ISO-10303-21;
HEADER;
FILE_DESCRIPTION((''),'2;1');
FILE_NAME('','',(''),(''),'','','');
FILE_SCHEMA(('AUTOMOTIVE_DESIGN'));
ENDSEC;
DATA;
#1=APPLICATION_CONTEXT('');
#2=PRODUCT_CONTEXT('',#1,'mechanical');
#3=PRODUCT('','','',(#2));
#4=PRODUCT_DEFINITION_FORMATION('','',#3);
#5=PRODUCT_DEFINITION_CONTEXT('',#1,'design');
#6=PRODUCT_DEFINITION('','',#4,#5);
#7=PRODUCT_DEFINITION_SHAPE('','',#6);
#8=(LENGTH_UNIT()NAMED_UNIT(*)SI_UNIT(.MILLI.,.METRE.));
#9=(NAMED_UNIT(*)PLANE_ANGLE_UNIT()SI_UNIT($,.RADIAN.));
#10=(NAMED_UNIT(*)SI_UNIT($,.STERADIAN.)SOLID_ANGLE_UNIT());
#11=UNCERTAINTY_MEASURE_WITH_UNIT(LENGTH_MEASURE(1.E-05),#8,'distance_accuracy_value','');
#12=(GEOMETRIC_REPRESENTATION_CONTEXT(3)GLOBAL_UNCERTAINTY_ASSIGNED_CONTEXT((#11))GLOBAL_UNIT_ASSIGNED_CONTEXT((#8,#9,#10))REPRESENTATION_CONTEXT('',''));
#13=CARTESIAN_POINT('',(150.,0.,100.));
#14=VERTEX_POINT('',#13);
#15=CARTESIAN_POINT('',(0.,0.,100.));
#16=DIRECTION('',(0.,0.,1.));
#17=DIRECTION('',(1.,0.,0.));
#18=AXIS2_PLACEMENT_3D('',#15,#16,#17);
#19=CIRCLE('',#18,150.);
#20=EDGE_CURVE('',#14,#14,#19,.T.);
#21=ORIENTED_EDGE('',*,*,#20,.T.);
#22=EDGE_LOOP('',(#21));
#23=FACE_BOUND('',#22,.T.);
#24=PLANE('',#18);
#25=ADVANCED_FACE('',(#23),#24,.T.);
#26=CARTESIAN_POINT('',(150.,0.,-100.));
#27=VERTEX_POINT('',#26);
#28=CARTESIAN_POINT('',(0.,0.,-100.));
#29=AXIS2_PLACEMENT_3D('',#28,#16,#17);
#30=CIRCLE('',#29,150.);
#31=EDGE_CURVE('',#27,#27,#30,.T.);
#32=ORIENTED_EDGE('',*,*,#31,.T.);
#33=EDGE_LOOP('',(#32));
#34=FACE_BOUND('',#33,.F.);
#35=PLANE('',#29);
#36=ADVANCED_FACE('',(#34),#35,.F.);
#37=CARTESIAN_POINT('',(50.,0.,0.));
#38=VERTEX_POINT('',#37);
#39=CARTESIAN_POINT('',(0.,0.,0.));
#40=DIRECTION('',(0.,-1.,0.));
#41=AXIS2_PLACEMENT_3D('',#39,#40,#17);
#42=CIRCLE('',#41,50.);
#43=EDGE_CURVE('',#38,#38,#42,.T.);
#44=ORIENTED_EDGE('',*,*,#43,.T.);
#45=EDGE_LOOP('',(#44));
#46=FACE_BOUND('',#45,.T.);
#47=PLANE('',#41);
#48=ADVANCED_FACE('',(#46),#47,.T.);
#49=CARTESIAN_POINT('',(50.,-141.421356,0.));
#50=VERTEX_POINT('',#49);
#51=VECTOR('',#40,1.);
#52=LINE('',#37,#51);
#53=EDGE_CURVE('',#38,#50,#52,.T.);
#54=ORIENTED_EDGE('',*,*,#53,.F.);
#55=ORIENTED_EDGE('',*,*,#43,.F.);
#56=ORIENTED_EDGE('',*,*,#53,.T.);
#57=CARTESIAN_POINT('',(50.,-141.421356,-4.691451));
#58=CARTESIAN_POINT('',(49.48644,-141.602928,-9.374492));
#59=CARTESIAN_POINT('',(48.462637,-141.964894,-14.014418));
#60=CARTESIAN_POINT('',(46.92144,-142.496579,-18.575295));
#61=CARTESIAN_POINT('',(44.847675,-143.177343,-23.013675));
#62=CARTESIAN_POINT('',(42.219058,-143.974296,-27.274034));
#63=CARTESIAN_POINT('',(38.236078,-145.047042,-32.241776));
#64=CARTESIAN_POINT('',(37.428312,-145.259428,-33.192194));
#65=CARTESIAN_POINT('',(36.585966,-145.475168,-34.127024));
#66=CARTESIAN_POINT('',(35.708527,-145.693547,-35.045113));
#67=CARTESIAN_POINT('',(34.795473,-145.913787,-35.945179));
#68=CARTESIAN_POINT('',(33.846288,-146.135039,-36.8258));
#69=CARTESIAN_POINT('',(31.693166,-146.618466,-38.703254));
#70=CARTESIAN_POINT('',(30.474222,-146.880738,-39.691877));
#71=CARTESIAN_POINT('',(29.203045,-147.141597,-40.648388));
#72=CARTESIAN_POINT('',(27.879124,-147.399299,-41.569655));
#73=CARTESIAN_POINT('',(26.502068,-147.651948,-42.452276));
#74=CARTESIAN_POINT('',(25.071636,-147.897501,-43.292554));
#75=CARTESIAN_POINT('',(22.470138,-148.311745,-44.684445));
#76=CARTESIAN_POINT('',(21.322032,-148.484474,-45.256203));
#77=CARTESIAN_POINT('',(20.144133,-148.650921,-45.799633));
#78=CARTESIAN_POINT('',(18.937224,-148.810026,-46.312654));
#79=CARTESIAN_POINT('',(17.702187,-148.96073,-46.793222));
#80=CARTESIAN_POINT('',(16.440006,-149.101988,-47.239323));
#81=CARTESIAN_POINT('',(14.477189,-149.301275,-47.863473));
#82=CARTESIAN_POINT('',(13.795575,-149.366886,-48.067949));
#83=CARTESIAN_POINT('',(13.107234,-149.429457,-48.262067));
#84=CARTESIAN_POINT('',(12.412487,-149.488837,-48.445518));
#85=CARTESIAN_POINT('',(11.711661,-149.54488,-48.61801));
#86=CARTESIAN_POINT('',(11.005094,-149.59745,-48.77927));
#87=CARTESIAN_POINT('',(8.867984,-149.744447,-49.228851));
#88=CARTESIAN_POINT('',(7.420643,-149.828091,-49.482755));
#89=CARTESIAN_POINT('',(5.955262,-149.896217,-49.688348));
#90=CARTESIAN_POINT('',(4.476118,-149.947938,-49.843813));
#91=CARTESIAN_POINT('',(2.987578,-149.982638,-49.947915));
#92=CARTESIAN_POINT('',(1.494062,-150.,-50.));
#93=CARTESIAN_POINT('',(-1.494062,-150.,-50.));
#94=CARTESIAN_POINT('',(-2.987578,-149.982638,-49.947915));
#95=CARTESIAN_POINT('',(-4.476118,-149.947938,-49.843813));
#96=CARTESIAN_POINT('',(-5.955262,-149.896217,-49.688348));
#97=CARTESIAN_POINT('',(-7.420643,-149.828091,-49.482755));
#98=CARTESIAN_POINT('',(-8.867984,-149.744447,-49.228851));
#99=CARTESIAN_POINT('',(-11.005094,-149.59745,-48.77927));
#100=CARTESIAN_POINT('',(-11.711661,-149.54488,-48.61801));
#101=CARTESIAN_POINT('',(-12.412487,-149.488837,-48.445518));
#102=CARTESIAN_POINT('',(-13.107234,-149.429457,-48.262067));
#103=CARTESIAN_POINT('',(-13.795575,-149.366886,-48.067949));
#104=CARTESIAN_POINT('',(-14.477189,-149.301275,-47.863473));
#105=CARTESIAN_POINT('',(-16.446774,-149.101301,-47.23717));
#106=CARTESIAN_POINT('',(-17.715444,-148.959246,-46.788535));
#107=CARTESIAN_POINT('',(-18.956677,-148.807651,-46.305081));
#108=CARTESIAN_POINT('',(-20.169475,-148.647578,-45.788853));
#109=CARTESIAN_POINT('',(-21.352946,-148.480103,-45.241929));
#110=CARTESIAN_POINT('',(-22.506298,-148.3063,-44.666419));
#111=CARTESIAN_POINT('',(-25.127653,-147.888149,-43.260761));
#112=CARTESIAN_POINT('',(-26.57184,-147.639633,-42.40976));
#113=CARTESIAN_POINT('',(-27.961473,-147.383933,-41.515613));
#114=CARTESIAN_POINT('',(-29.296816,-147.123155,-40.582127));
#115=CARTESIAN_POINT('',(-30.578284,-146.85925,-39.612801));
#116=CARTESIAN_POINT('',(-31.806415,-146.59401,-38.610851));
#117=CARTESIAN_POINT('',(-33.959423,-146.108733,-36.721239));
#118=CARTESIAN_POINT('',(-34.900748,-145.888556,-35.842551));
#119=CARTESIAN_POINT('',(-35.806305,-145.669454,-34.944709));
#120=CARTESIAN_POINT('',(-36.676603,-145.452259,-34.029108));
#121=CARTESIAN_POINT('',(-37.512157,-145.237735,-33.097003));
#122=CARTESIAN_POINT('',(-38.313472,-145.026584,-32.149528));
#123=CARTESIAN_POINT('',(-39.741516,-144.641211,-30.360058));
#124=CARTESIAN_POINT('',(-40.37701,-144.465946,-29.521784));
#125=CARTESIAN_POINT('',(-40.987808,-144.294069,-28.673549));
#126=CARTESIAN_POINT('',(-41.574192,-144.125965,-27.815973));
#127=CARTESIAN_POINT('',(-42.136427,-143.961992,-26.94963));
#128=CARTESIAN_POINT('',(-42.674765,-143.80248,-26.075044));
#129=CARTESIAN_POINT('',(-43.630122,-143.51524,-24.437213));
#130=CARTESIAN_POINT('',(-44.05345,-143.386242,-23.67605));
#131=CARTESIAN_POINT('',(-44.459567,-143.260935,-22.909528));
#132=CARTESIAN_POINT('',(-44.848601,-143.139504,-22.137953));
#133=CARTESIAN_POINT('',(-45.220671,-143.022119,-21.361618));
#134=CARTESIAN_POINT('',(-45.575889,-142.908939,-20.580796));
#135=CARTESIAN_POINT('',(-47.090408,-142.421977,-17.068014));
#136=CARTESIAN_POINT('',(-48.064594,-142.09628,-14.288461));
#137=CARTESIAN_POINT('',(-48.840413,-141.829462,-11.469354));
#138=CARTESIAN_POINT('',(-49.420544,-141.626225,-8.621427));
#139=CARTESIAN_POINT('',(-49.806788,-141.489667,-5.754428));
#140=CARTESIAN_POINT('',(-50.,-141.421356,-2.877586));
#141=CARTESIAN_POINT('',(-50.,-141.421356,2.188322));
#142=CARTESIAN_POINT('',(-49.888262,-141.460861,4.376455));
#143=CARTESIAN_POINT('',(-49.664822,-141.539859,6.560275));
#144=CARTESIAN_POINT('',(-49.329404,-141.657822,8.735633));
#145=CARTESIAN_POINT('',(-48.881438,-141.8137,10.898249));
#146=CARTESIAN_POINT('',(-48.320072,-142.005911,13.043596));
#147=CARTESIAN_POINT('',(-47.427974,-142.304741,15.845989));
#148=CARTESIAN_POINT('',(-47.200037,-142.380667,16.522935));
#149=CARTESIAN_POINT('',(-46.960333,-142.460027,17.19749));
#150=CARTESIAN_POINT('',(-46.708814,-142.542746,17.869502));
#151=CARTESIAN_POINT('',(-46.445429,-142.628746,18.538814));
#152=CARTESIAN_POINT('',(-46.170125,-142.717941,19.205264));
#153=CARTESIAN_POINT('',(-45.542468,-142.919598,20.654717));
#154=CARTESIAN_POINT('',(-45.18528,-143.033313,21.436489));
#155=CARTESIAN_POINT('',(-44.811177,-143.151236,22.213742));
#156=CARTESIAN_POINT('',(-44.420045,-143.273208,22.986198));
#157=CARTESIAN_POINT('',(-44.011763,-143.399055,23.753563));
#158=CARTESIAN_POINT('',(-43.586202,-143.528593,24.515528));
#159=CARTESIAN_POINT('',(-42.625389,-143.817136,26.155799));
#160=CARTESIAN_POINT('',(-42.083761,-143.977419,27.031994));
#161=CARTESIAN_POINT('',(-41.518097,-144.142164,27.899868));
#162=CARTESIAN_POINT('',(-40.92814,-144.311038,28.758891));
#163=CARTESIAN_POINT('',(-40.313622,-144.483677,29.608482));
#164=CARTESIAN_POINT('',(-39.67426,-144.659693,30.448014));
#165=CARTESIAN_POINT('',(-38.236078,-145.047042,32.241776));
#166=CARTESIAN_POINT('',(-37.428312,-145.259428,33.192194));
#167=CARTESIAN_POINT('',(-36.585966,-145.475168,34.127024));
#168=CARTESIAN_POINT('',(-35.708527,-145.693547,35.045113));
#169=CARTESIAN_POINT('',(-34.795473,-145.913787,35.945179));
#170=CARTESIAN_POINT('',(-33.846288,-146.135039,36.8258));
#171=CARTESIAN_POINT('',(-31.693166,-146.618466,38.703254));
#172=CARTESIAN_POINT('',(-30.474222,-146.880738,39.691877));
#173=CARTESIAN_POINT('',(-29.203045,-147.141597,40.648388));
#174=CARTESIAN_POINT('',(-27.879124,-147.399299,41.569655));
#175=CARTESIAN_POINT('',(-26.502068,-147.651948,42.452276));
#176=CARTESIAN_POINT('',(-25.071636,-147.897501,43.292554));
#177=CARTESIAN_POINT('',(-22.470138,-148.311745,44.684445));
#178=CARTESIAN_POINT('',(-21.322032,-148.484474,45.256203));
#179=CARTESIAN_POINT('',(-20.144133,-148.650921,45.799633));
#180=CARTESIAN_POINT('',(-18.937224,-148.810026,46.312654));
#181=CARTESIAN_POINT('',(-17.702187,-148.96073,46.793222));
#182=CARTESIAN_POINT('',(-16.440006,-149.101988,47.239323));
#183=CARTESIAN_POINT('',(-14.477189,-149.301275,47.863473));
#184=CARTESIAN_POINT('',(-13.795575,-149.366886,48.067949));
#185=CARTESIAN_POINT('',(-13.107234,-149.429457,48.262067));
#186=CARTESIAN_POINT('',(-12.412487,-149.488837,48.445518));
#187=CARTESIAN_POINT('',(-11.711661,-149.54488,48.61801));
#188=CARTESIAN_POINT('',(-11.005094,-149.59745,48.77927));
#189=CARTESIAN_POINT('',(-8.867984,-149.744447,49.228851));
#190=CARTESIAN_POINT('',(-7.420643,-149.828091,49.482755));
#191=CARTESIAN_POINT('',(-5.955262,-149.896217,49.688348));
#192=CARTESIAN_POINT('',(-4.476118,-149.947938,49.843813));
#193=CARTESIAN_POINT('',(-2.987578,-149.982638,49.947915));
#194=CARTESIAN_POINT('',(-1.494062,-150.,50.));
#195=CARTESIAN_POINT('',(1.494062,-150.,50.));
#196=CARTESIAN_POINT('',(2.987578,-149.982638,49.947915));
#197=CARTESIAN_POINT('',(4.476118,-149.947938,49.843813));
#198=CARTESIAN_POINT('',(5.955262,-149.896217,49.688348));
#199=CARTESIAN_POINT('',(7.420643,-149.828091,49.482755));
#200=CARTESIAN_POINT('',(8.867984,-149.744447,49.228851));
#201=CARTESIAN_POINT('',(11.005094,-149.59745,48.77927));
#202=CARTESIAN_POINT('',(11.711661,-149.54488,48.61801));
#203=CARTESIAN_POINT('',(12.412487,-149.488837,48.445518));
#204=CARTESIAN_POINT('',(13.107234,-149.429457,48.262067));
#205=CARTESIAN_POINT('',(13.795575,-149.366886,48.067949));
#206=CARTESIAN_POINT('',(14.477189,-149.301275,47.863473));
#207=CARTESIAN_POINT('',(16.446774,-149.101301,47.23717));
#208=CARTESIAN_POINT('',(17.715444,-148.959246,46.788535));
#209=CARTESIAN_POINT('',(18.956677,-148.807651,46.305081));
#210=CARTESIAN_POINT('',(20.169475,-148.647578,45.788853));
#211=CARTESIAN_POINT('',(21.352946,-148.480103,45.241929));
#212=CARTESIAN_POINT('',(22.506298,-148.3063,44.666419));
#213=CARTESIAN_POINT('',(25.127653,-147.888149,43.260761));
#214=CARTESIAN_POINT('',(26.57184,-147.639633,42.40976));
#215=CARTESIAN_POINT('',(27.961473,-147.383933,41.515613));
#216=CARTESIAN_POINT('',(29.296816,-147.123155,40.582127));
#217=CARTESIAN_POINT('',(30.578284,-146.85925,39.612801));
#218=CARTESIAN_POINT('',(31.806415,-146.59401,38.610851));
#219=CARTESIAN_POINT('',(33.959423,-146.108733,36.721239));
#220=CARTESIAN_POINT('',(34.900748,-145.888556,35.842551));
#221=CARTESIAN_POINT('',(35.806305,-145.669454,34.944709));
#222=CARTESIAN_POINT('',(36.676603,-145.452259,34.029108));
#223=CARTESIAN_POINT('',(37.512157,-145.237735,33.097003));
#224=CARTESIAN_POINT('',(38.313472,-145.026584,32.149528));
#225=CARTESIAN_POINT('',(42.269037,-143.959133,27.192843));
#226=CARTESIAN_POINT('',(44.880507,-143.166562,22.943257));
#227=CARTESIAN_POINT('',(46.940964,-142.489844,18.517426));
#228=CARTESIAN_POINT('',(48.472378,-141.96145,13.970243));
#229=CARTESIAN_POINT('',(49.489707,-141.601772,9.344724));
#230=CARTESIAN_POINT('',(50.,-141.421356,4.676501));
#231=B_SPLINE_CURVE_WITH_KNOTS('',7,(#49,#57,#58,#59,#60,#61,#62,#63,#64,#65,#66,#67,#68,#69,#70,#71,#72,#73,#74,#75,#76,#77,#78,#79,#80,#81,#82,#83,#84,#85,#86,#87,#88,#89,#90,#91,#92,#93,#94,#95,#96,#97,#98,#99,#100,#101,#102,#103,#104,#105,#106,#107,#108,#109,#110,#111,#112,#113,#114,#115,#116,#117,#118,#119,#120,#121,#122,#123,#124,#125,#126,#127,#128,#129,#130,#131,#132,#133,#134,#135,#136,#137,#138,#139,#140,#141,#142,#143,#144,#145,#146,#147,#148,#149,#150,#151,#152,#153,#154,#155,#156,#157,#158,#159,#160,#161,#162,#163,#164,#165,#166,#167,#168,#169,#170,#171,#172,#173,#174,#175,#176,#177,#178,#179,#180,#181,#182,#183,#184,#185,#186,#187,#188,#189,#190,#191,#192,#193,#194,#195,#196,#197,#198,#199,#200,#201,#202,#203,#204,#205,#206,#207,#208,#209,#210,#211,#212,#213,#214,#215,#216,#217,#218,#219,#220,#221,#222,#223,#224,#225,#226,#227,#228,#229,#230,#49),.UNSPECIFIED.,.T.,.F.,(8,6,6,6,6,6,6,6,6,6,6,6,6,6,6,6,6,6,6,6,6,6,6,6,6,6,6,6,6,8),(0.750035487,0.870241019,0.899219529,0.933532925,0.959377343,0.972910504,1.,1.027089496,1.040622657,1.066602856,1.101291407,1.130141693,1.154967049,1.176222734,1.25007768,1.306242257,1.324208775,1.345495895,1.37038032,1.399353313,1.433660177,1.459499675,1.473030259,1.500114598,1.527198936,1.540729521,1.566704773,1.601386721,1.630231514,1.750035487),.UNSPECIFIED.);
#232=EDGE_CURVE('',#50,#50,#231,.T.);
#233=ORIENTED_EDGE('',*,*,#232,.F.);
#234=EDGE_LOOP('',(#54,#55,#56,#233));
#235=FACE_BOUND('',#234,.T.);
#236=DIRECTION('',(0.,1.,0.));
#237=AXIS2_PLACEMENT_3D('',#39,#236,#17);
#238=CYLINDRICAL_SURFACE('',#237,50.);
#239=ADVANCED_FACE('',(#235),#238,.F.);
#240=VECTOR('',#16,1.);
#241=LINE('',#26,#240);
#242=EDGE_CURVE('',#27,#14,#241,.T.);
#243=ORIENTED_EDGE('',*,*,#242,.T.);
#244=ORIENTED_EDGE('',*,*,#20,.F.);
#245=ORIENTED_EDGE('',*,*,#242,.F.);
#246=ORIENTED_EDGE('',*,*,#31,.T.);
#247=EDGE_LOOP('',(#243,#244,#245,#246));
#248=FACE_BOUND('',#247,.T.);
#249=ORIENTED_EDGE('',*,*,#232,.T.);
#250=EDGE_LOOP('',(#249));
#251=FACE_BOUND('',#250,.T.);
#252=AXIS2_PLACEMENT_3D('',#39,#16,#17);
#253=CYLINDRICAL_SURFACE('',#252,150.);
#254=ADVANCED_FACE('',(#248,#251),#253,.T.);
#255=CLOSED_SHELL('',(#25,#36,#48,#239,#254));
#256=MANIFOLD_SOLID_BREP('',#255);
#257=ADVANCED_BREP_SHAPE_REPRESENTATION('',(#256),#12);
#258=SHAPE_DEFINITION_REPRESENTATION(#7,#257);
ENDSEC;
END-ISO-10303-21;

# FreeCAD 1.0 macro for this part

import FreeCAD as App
import Part
import Sketcher
Q = App.Units.Quantity

doc = App.newDocument("Part")
body = doc.addObject("PartDesign::Body", "Body")

sketch1 = body.newObject("Sketcher::SketchObject", "Sketch")
sketch1.AttachmentSupport = (doc.getObject("XY_Plane"), [""])
sketch1.MapMode = "FlatFace"
sketch1.addGeometry(Part.Circle(App.Vector(0, 0, 0), App.Vector(0, 0, 1), 150), False)
sketch1.addConstraint([
    Sketcher.Constraint("Coincident", 0, 3, -1, 1),
    Sketcher.Constraint("Diameter", 0, Q("300 mm")),
])
pad1 = body.newObject("PartDesign::Pad", "Pad")
pad1.Profile = sketch1
pad1.Length = 200
pad1.Midplane = True

sketch2 = body.newObject("Sketcher::SketchObject", "Sketch001")
sketch2.AttachmentSupport = (doc.getObject("XZ_Plane"), [""])
sketch2.MapMode = "FlatFace"
sketch2.addGeometry(Part.Circle(App.Vector(0, 0, 0), App.Vector(0, 0, 1), 50), False)
sketch2.addConstraint([
    Sketcher.Constraint("Coincident", 0, 3, -1, 1),
    Sketcher.Constraint("Diameter", 0, Q("100 mm")),
])
pocket1 = body.newObject("PartDesign::Pocket", "Pocket")
pocket1.Profile = sketch2
pocket1.Type = "ThroughAll"
pocket1.Reversed = True

doc.recompute()
